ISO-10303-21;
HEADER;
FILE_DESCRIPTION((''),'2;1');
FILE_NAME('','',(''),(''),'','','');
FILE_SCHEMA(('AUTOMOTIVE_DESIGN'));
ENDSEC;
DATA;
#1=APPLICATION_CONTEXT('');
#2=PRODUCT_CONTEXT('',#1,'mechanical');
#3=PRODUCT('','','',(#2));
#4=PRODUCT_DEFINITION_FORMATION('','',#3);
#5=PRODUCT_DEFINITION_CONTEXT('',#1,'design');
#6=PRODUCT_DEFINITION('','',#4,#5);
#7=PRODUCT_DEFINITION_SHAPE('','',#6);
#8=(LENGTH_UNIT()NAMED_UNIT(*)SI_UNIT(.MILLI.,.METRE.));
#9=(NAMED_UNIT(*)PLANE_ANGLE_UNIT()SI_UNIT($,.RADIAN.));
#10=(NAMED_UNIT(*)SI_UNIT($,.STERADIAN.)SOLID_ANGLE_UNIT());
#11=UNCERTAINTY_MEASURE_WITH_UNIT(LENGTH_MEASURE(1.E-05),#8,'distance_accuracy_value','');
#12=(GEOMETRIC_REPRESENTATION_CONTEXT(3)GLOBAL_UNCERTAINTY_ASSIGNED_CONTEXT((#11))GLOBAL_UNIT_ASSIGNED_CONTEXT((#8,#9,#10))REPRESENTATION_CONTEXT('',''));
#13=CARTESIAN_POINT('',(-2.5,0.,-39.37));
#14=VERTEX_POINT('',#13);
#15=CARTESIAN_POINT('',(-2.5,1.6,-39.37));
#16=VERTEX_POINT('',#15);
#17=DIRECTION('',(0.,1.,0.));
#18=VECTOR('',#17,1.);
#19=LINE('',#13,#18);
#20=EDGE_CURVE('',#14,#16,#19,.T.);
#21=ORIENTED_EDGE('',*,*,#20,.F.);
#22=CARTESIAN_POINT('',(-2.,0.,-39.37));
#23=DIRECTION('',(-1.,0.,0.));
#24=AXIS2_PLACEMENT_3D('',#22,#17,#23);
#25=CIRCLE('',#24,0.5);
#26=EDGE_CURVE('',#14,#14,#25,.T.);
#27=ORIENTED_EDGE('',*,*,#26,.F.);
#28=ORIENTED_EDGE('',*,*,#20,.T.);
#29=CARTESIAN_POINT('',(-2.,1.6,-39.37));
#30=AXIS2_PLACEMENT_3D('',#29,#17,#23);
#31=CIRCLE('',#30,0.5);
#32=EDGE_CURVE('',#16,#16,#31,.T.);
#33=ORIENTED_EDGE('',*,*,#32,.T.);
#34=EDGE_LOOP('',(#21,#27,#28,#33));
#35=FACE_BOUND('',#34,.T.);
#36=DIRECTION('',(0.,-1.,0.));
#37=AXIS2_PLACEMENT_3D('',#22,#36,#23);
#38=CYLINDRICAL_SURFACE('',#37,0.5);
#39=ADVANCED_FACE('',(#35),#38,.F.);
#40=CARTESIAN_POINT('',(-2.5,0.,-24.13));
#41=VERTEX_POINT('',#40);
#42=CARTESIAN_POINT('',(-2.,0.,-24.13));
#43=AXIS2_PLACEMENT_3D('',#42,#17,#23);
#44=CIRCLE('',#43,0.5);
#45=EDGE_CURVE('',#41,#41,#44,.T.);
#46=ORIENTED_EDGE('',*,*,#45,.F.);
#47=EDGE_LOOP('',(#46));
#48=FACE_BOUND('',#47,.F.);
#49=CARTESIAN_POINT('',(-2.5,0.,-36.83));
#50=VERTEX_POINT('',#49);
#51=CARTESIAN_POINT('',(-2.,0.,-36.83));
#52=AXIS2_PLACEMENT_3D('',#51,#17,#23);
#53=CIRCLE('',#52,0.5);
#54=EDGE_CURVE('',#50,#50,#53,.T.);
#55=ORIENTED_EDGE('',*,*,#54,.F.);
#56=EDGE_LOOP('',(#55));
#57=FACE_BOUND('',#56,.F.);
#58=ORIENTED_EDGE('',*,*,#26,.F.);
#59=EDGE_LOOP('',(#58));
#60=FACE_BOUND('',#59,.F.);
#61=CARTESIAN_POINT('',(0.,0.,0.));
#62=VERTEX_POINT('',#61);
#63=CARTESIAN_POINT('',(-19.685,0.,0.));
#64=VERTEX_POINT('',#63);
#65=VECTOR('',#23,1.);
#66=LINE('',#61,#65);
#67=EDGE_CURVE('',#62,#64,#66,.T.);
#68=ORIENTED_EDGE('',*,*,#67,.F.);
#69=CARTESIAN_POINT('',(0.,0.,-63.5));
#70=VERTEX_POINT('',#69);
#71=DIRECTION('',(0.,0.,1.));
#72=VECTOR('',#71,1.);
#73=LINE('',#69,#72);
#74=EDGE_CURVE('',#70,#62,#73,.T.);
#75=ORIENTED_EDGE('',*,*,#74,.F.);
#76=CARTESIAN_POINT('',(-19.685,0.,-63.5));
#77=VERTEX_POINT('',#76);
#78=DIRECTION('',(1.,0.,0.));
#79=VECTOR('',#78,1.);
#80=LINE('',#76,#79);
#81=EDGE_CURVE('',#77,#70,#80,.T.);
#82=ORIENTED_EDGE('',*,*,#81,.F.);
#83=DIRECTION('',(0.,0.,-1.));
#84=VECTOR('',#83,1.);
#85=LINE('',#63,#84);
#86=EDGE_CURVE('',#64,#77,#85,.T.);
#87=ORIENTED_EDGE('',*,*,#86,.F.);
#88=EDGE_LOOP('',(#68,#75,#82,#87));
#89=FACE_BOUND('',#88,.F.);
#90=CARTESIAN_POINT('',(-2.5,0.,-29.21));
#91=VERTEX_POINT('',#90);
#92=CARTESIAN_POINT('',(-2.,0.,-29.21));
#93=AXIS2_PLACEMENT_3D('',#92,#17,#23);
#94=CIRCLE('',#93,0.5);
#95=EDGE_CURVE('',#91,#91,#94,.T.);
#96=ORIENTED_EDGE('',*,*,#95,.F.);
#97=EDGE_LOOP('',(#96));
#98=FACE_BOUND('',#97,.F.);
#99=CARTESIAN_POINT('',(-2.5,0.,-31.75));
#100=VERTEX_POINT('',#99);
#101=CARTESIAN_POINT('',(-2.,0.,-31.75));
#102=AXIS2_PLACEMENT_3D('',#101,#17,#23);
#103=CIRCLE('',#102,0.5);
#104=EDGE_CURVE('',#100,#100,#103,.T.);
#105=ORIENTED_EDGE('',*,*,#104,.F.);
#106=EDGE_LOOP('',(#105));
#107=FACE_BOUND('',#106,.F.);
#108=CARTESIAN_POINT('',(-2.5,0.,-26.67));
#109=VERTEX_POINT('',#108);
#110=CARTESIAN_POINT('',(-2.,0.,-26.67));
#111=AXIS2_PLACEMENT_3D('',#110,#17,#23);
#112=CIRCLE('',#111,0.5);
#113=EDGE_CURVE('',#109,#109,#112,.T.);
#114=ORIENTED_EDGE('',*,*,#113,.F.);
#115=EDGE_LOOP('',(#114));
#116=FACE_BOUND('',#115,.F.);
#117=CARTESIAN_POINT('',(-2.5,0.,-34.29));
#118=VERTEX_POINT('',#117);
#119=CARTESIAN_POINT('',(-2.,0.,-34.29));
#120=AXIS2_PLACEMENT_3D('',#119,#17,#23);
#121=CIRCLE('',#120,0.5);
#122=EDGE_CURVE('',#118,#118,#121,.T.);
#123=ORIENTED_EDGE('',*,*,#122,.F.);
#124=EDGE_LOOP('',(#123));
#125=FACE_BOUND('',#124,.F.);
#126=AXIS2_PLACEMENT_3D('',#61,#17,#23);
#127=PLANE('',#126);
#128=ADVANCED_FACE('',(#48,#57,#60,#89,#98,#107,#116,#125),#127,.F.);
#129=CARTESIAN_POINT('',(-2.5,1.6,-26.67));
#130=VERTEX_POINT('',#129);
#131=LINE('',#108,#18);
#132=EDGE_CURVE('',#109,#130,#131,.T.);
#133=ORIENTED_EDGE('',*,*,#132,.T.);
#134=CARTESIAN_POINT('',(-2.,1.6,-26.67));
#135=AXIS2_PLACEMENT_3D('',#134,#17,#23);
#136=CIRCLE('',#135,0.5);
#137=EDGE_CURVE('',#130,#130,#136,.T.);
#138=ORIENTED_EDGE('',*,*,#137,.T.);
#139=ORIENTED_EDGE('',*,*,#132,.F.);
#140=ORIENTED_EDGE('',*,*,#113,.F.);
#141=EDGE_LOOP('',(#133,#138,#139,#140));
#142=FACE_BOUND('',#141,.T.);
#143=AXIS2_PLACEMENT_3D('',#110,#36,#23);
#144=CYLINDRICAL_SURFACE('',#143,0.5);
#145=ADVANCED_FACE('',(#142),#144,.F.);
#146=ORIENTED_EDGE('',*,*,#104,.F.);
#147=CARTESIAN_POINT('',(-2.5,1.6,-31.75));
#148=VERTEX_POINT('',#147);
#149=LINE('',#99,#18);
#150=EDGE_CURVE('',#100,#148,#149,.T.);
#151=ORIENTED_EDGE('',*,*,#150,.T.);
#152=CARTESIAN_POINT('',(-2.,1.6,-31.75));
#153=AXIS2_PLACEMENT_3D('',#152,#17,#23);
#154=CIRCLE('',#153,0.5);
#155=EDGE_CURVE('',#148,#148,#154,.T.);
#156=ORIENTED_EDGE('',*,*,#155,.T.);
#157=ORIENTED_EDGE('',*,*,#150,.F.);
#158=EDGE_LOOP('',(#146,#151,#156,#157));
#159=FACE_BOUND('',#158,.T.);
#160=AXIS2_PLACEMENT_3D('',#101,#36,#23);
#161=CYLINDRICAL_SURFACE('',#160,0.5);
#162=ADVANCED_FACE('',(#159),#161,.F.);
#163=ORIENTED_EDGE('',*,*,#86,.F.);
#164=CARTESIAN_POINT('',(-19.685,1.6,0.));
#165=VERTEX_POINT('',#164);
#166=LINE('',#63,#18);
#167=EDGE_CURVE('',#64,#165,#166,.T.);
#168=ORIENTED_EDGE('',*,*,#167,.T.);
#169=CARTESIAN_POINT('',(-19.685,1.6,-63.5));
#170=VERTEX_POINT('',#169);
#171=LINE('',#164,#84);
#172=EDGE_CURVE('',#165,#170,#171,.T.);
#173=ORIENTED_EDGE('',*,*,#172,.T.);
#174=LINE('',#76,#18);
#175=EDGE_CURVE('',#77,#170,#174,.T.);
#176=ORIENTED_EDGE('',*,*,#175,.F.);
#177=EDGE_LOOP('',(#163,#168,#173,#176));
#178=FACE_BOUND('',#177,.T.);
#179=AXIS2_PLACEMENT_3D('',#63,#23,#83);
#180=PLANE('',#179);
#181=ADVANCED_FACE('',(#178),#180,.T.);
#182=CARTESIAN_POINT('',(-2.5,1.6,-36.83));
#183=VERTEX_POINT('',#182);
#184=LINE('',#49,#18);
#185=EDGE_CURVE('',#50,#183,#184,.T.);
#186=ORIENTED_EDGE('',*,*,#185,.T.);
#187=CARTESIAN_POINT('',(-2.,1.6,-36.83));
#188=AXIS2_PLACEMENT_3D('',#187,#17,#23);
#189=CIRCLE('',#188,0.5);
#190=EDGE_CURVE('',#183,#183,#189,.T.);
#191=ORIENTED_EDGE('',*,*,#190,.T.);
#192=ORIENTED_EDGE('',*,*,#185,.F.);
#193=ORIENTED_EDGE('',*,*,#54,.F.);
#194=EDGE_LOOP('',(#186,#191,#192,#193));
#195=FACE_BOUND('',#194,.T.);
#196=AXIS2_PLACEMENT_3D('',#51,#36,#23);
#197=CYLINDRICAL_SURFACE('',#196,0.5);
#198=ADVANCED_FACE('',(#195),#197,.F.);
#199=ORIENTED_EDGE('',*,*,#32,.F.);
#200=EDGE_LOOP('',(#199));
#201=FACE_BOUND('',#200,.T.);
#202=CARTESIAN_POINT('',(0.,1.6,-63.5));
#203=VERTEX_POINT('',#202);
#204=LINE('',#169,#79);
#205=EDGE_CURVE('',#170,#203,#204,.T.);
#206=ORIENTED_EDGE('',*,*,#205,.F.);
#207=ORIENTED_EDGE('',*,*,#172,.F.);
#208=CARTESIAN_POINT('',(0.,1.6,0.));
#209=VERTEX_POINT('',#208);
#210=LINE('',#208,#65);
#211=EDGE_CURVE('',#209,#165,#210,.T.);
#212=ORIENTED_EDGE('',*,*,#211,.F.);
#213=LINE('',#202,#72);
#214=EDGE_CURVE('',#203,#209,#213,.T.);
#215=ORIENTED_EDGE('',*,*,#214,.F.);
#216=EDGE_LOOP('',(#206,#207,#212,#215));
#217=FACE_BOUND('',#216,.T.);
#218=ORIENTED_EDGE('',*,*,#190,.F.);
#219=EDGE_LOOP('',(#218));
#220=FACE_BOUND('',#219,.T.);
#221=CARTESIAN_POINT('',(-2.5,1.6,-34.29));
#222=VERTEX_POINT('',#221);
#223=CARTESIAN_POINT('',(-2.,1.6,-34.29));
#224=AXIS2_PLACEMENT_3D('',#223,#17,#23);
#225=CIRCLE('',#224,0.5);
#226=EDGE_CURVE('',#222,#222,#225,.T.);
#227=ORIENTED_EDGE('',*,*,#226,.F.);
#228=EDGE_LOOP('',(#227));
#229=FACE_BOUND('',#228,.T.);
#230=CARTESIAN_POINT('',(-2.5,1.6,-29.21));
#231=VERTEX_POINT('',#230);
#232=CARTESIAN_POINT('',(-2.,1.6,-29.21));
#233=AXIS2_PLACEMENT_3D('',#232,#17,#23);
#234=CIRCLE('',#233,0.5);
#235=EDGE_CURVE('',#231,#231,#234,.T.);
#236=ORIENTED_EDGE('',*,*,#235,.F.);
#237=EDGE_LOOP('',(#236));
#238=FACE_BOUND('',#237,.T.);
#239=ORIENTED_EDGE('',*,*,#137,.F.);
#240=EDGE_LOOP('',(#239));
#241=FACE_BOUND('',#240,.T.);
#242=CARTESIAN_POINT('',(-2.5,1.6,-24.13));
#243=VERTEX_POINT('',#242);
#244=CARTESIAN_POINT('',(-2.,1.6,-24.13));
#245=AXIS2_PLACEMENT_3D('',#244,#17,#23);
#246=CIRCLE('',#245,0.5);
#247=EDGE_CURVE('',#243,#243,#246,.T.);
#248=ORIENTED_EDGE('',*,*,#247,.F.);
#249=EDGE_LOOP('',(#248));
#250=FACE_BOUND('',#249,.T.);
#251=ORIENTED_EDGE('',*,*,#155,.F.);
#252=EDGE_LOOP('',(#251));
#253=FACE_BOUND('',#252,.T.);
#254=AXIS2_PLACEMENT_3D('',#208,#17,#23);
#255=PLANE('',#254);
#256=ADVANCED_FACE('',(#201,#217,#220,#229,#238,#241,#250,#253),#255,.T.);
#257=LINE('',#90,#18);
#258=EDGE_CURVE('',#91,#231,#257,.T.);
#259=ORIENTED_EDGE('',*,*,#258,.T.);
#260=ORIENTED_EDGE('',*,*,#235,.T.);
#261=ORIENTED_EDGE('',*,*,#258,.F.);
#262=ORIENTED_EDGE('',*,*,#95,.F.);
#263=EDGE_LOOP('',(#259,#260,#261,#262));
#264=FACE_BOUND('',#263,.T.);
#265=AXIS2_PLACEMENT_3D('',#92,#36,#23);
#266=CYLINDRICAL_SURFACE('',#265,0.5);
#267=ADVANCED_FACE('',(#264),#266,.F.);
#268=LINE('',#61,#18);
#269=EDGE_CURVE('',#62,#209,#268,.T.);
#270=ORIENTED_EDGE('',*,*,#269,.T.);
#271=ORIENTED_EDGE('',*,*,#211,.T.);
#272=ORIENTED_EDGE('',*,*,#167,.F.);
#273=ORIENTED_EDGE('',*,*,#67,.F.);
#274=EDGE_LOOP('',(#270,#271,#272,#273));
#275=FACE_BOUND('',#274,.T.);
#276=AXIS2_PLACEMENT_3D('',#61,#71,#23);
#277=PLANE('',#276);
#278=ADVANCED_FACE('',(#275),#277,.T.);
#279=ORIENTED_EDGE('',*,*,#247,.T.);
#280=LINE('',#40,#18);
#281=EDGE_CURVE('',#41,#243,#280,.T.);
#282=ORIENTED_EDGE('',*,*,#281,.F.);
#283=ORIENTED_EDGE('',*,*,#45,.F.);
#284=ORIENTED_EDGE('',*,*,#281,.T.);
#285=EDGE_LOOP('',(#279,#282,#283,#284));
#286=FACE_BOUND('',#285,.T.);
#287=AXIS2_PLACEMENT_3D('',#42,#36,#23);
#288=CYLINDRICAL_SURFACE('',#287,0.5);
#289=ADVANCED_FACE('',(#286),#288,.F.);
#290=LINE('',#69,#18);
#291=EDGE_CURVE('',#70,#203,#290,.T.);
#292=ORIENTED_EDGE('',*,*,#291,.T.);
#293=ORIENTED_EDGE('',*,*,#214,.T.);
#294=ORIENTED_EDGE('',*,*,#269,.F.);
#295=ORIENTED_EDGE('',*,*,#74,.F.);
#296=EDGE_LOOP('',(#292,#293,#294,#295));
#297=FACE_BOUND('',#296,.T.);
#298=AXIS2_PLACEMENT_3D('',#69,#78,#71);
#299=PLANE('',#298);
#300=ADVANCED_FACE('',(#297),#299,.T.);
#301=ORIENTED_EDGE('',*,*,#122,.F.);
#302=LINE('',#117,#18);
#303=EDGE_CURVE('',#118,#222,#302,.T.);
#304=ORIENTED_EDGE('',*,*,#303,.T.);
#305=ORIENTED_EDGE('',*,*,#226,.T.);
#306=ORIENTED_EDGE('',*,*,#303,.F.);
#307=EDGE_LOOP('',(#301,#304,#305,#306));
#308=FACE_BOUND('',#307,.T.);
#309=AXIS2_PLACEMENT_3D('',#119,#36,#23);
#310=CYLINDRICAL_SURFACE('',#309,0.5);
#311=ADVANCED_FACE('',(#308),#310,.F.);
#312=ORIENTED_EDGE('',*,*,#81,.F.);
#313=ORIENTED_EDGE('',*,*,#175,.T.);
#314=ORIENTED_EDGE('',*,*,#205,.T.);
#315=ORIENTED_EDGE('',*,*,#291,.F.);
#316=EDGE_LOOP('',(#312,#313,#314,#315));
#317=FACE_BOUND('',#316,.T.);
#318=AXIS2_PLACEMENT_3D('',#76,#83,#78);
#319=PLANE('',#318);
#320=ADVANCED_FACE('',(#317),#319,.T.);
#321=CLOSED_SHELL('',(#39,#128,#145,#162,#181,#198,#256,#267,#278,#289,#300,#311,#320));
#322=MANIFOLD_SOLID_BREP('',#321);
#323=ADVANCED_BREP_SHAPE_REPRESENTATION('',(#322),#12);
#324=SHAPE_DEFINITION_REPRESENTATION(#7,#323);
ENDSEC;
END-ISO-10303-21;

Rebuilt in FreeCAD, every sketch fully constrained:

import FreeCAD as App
import Part
import Sketcher
Q = App.Units.Quantity


def add_polygon(sketch, points):
    """Adds a closed chain of lines whose ends are joined by coincident constraints."""
    first, n = sketch.GeometryCount, len(points)
    for a, b in zip(points, points[1:] + points[:1]):
        sketch.addGeometry(Part.LineSegment(App.Vector(*a, 0), App.Vector(*b, 0)), False)
    for i in range(n):
        sketch.addConstraint(Sketcher.Constraint("Coincident", first + i, 2, first + (i + 1) % n, 1))

doc = App.newDocument("Part")
params = doc.addObject("Spreadsheet::Sheet", "Params")
for row, (alias, value) in enumerate([
    ("sketch1_height", "2.5 in"),
    ("sketch1_width", "0.775 in"),
    ("pad1_length", "0.0629921 in"),
], start=1):
    params.set(f"A{row}", alias)
    params.set(f"B{row}", "=" + value)
    params.setAlias(f"B{row}", alias)

body = doc.addObject("PartDesign::Body", "Body")

# Sketch on XZ plane
sketch1 = body.newObject("Sketcher::SketchObject", "Sketch")
sketch1.AttachmentSupport = (doc.getObject("XZ_Plane"), [""])
sketch1.MapMode = "FlatFace"
add_polygon(sketch1, [(-19.685, 0), (0, 0), (0, -63.5), (-19.685, -63.5)])  # lines 0-3
sketch1.addGeometry(Part.Circle(App.Vector(-2, -39.37, 0), App.Vector(0, 0, 1), 0.5), False)  # 4
sketch1.addGeometry(Part.Circle(App.Vector(-2, -36.83, 0), App.Vector(0, 0, 1), 0.5), False)  # 5
sketch1.addGeometry(Part.Circle(App.Vector(-2, -34.29, 0), App.Vector(0, 0, 1), 0.5), False)  # 6
sketch1.addGeometry(Part.Circle(App.Vector(-2, -31.75, 0), App.Vector(0, 0, 1), 0.5), False)  # 7
sketch1.addGeometry(Part.Circle(App.Vector(-2, -29.21, 0), App.Vector(0, 0, 1), 0.5), False)  # 8
sketch1.addGeometry(Part.Circle(App.Vector(-2, -26.67, 0), App.Vector(0, 0, 1), 0.5), False)  # 9
sketch1.addGeometry(Part.Circle(App.Vector(-2, -24.13, 0), App.Vector(0, 0, 1), 0.5), False)  # 10
sketch1.addConstraint(Sketcher.Constraint("Horizontal", 0))
sketch1.addConstraint(Sketcher.Constraint("Vertical", 1))
sketch1.addConstraint(Sketcher.Constraint("Horizontal", 2))
sketch1.addConstraint(Sketcher.Constraint("Vertical", 3))
sketch1.addConstraint(Sketcher.Constraint("Coincident", 0, 2, -1, 1))
sketch1.addConstraint(Sketcher.Constraint("Equal", 4, 5))
sketch1.addConstraint(Sketcher.Constraint("Equal", 5, 6))
sketch1.addConstraint(Sketcher.Constraint("Equal", 6, 7))
sketch1.addConstraint(Sketcher.Constraint("Equal", 7, 8))
sketch1.addConstraint(Sketcher.Constraint("Equal", 8, 9))
sketch1.addConstraint(Sketcher.Constraint("Equal", 9, 10))
sketch1.addConstraint(Sketcher.Constraint("Vertical", 4, 3, 5, 3))
sketch1.addConstraint(Sketcher.Constraint("Vertical", 5, 3, 6, 3))
sketch1.addConstraint(Sketcher.Constraint("Vertical", 6, 3, 7, 3))
sketch1.addConstraint(Sketcher.Constraint("Vertical", 7, 3, 8, 3))
sketch1.addConstraint(Sketcher.Constraint("Vertical", 8, 3, 9, 3))
sketch1.addConstraint(Sketcher.Constraint("Vertical", 9, 3, 10, 3))
sketch1.addConstraint(Sketcher.Constraint("DistanceY", 1, 2, 1, 1, Q("2.5 in")))
sketch1.addConstraint(Sketcher.Constraint("DistanceY", 4, 3, 5, 3, Q("0.1 in")))
sketch1.addConstraint(Sketcher.Constraint("DistanceY", 5, 3, 6, 3, Q("0.1 in")))
sketch1.addConstraint(Sketcher.Constraint("DistanceY", 6, 3, 7, 3, Q("0.1 in")))
sketch1.addConstraint(Sketcher.Constraint("DistanceY", 7, 3, 8, 3, Q("0.1 in")))
sketch1.addConstraint(Sketcher.Constraint("DistanceY", 8, 3, 9, 3, Q("0.1 in")))
sketch1.addConstraint(Sketcher.Constraint("DistanceY", 9, 3, 10, 3, Q("0.1 in")))
sketch1.addConstraint(Sketcher.Constraint("Diameter", 4, 1.0))
sketch1.addConstraint(Sketcher.Constraint("DistanceX", 0, 1, 0, 2, Q("0.775 in")))
sketch1.addConstraint(Sketcher.Constraint("DistanceY", 7, 3, -1, 1, Q("1.25 in")))
sketch1.addConstraint(Sketcher.Constraint("DistanceX", 4, 3, -1, 1, 2.0))
sketch1.setExpression("Constraints[21]", "Params.sketch1_height")
sketch1.setExpression("Constraints[29]", "Params.sketch1_width")
pad1 = body.newObject("PartDesign::Pad", "Pad")
pad1.Profile = sketch1
pad1.setExpression("Length", "Params.pad1_length")
pad1.Reversed = True

doc.recompute()
